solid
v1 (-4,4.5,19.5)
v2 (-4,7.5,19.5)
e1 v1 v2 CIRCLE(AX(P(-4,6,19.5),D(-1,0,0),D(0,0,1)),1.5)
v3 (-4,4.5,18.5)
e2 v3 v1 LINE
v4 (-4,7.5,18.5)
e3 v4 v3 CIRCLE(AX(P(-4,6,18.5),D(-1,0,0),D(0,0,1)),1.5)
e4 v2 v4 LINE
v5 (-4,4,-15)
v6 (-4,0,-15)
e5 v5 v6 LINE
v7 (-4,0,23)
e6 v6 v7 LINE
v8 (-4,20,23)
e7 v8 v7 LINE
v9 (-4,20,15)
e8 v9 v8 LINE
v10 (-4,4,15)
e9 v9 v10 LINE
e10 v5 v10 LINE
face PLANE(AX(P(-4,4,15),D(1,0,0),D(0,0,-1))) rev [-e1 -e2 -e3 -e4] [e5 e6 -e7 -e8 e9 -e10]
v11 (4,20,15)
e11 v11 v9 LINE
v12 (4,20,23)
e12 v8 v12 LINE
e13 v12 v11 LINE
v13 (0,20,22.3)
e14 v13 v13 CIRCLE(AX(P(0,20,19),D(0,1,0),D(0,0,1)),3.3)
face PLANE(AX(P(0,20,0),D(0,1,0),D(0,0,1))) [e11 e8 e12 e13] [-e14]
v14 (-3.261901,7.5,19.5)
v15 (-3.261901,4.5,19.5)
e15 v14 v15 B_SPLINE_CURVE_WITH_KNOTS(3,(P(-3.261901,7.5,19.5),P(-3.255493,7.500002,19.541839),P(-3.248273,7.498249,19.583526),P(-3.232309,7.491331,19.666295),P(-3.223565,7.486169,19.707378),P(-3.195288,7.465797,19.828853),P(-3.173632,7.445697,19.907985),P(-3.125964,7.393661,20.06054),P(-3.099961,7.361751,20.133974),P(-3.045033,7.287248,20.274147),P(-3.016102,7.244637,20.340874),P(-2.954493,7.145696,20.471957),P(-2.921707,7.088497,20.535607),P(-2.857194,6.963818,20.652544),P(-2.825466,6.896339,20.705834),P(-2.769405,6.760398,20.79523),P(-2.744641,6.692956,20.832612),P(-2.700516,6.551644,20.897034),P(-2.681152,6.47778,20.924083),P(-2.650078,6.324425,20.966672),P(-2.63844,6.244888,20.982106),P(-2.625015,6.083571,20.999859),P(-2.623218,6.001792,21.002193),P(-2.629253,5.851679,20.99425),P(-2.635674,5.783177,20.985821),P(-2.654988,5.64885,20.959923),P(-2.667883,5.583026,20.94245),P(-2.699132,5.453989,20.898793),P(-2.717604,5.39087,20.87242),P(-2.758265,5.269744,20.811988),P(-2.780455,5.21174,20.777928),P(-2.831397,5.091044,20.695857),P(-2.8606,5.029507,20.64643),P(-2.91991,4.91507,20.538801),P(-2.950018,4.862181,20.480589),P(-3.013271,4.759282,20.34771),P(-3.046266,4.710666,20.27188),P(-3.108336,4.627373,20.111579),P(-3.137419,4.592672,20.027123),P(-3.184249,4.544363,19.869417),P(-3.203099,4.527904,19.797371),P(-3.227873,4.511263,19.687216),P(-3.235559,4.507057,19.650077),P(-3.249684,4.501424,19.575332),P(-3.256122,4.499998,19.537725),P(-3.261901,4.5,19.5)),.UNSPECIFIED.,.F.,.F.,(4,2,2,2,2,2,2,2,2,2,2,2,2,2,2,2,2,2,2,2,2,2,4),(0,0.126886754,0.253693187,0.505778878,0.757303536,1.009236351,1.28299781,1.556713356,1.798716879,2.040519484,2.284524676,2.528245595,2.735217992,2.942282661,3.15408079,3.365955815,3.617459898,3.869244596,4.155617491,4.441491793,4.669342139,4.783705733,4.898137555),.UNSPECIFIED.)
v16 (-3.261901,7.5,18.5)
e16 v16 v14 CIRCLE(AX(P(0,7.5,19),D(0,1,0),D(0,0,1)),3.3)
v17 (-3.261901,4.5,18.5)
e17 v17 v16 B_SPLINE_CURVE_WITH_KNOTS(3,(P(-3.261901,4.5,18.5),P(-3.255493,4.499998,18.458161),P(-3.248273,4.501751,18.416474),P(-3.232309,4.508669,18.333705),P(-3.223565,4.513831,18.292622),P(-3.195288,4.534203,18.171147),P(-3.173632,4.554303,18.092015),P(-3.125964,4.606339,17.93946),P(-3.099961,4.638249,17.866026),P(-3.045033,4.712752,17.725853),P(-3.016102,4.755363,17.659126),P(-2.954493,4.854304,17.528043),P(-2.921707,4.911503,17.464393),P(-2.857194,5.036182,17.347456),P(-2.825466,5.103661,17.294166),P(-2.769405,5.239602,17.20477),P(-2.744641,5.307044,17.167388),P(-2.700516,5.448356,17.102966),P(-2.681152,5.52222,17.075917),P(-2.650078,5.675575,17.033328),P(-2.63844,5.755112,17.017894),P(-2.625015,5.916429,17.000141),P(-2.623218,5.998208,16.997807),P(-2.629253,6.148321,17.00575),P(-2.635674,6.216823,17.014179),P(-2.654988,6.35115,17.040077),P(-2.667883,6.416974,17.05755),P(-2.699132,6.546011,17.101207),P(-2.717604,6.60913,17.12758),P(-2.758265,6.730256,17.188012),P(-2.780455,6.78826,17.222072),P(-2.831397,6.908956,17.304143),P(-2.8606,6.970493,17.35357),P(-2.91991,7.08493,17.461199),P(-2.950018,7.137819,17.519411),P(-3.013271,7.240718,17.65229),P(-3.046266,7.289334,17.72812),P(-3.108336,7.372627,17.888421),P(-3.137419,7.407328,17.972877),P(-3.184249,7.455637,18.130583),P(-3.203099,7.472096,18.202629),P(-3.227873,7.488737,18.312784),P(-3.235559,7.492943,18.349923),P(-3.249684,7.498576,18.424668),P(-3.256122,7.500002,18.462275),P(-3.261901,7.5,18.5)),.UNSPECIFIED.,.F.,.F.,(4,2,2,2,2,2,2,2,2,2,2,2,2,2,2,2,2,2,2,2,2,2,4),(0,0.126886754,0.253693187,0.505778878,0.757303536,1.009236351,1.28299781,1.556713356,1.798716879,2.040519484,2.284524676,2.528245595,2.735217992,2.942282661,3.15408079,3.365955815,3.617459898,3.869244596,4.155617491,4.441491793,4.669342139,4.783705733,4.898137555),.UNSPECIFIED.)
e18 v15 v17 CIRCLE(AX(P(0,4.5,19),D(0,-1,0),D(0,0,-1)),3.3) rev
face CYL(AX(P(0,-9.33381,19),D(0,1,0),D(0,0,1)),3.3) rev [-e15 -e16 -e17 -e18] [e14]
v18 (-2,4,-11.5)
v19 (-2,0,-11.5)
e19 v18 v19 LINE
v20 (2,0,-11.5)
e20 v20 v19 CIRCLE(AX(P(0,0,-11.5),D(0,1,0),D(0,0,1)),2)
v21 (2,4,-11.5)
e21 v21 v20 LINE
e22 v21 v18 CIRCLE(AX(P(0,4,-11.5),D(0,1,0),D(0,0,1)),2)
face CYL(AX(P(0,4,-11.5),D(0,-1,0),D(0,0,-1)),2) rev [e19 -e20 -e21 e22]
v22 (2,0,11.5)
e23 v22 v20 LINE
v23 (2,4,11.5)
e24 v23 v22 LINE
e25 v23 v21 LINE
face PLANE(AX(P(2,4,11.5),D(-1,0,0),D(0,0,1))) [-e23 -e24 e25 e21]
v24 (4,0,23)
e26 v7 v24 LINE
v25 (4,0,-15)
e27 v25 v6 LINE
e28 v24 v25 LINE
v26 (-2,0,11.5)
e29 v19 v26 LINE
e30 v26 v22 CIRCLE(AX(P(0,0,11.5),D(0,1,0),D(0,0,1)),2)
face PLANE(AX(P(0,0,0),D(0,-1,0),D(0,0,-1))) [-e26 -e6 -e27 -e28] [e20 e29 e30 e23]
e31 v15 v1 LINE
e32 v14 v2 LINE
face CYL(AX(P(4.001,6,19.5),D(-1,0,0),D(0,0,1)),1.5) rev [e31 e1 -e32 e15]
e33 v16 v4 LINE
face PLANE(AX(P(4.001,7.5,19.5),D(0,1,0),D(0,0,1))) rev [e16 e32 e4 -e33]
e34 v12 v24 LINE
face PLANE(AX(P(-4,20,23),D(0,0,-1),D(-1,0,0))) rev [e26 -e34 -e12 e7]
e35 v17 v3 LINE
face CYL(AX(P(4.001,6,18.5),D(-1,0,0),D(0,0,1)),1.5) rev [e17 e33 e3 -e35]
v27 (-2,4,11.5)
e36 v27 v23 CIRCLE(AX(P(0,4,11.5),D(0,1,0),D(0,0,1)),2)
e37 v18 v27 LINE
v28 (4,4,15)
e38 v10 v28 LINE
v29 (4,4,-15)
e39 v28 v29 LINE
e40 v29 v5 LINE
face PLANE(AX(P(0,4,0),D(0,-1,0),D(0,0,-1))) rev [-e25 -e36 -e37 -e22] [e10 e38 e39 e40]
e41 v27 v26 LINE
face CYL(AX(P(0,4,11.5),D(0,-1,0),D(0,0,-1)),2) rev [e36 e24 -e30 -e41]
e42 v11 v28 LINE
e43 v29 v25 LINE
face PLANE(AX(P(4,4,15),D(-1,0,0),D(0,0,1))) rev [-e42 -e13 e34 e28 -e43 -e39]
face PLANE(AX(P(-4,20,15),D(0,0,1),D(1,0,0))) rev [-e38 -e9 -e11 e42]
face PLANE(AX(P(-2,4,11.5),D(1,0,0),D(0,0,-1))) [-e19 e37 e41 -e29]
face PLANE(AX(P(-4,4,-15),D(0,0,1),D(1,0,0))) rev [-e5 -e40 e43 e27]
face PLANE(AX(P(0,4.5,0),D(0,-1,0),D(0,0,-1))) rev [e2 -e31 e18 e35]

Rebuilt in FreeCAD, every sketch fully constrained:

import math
import FreeCAD as App
import Part
import Sketcher
from FreeCAD import Vector


def add_polygon(sketch, points):
    """Adds a closed chain of lines whose ends are joined by coincident constraints."""
    first, n = sketch.GeometryCount, len(points)
    for a, b in zip(points, points[1:] + points[:1]):
        sketch.addGeometry(Part.LineSegment(App.Vector(*a, 0), App.Vector(*b, 0)), False)
    for i in range(n):
        sketch.addConstraint(Sketcher.Constraint("Coincident", first + i, 2, first + (i + 1) % n, 1))

doc = App.newDocument("Part")
params = doc.addObject("Spreadsheet::Sheet", "Params")
for row, (alias, value) in enumerate([
    ("sketch1_width", "8 mm"),
    ("sketch1_height", "30 mm"),
    ("pad1_length", "4 mm"),
    ("sketch2_radius", "2 mm"),
    ("sketch2_height", "23 mm"),
    ("sketch3_width", "8 mm"),
    ("pad2_length", "20 mm"),
    ("sketch4_diameter", "6.6 mm"),
    ("pocket2_length", "15.5 mm"),
    ("sketch5_radius", "1.5 mm"),
    ("sketch5_height", "1 mm"),
], start=1):
    params.set(f"A{row}", alias)
    params.set(f"B{row}", "=" + value)
    params.setAlias(f"B{row}", alias)

body = doc.addObject("PartDesign::Body", "Body")

sketch1 = body.newObject("Sketcher::SketchObject", "Sketch")
sketch1.AttachmentSupport = (doc.getObject("XZ_Plane"), [""])
sketch1.MapMode = "FlatFace"
add_polygon(sketch1, [(-4, -15), (-4, 15), (4, 15), (4, -15)])
sketch1.addConstraint(Sketcher.Constraint("Vertical", 0))
sketch1.addConstraint(Sketcher.Constraint("Horizontal", 1))
sketch1.addConstraint(Sketcher.Constraint("Vertical", 2))
sketch1.addConstraint(Sketcher.Constraint("Horizontal", 3))
sketch1.addConstraint(Sketcher.Constraint("Symmetric", 0, 2, 2, 2, -1, 1))
sketch1.addConstraint(Sketcher.Constraint("DistanceX", 1, 1, 1, 2, 8.0))
sketch1.addConstraint(Sketcher.Constraint("DistanceY", 0, 1, 0, 2, 30.0))
sketch1.setExpression("Constraints[9]", "Params.sketch1_width")
sketch1.setExpression("Constraints[10]", "Params.sketch1_height")
pad1 = body.newObject("PartDesign::Pad", "Pad")
pad1.Profile = sketch1
pad1.setExpression("Length", "Params.pad1_length")
pad1.Reversed = True

sketch2 = body.newObject("Sketcher::SketchObject", "Sketch001")
sketch2.AttachmentSupport = (doc.getObject("XZ_Plane"), [""])
sketch2.MapMode = "FlatFace"
sketch2.addGeometry(Part.LineSegment(Vector(-2, -11.5, 0), Vector(-2, 11.5, 0)), False)
sketch2.addGeometry(Part.ArcOfCircle(Part.Circle(Vector(0, 11.5, 0), Vector(0, 0, 1), 2), math.radians(0), math.radians(180)), False)
sketch2.addGeometry(Part.LineSegment(Vector(2, 11.5, 0), Vector(2, -11.5, 0)), False)
sketch2.addGeometry(Part.ArcOfCircle(Part.Circle(Vector(0, -11.5, 0), Vector(0, 0, 1), 2), math.radians(180), math.radians(360)), False)
sketch2.addConstraint(Sketcher.Constraint("Tangent", 0, 2, 1, 2))
sketch2.addConstraint(Sketcher.Constraint("Tangent", 1, 1, 2, 1))
sketch2.addConstraint(Sketcher.Constraint("Tangent", 2, 2, 3, 2))
sketch2.addConstraint(Sketcher.Constraint("Tangent", 3, 1, 0, 1))
sketch2.addConstraint(Sketcher.Constraint("Vertical", 0))
sketch2.addConstraint(Sketcher.Constraint("Vertical", 2))
sketch2.addConstraint(Sketcher.Constraint("Symmetric", 1, 3, 3, 3, -1, 1))
sketch2.addConstraint(Sketcher.Constraint("Radius", 1, 2.0))
sketch2.addConstraint(Sketcher.Constraint("DistanceY", 0, 1, 0, 2, 23.0))
sketch2.setExpression("Constraints[7]", "Params.sketch2_radius")
sketch2.setExpression("Constraints[8]", "Params.sketch2_height")
pocket1 = body.newObject("PartDesign::Pocket", "Pocket")
pocket1.Profile = sketch2
pocket1.Type = "ThroughAll"

sketch3 = body.newObject("Sketcher::SketchObject", "Sketch002")
sketch3.AttachmentSupport = (doc.getObject("XZ_Plane"), [""])
sketch3.MapMode = "FlatFace"
add_polygon(sketch3, [(-4, 15), (-4, 23), (4, 23), (4, 15)])
sketch3.addConstraint(Sketcher.Constraint("Vertical", 0))
sketch3.addConstraint(Sketcher.Constraint("Horizontal", 1))
sketch3.addConstraint(Sketcher.Constraint("Vertical", 2))
sketch3.addConstraint(Sketcher.Constraint("Horizontal", 3))
sketch3.addConstraint(Sketcher.Constraint("Equal", 3, 0))
sketch3.addConstraint(Sketcher.Constraint("DistanceX", 1, 1, 1, 2, 8.0))
sketch3.addConstraint(Sketcher.Constraint("DistanceX", 0, 2, -1, 1, 4.0))
sketch3.addConstraint(Sketcher.Constraint("DistanceY", -1, 1, 0, 2, 23.0))
sketch3.setExpression("Constraints[9]", "Params.sketch3_width")
pad2 = body.newObject("PartDesign::Pad", "Pad001")
pad2.Profile = sketch3
pad2.setExpression("Length", "Params.pad2_length")
pad2.Reversed = True

sketch4 = body.newObject("Sketcher::SketchObject", "Sketch003")
sketch4.AttachmentSupport = (doc.getObject("XZ_Plane"), [""])
sketch4.MapMode = "FlatFace"
sketch4.AttachmentOffset = App.Placement(Vector(0, 0, -20), App.Rotation())
sketch4.addGeometry(Part.Circle(Vector(0, 19, 0), Vector(0, 0, 1), 3.3), False)
sketch4.addConstraint(Sketcher.Constraint("PointOnObject", 0, 3, -2))
sketch4.addConstraint(Sketcher.Constraint("Diameter", 0, 6.6))
sketch4.addConstraint(Sketcher.Constraint("DistanceY", -1, 1, 0, 3, 19.0))
sketch4.setExpression("Constraints[1]", "Params.sketch4_diameter")
pocket2 = body.newObject("PartDesign::Pocket", "Pocket001")
pocket2.Profile = sketch4
pocket2.setExpression("Length", "Params.pocket2_length")
pocket2.Reversed = True

sketch5 = body.newObject("Sketcher::SketchObject", "Sketch004")
sketch5.AttachmentSupport = (doc.getObject("YZ_Plane"), [""])
sketch5.MapMode = "FlatFace"
sketch5.AttachmentOffset = App.Placement(Vector(0, 0, -4), App.Rotation())
sketch5.addGeometry(Part.LineSegment(Vector(4.5, 18.5, 0), Vector(4.5, 19.5, 0)), False)
sketch5.addGeometry(Part.ArcOfCircle(Part.Circle(Vector(6, 19.5, 0), Vector(0, 0, 1), 1.5), math.radians(0), math.radians(180)), False)
sketch5.addGeometry(Part.LineSegment(Vector(7.5, 19.5, 0), Vector(7.5, 18.5, 0)), False)
sketch5.addGeometry(Part.ArcOfCircle(Part.Circle(Vector(6, 18.5, 0), Vector(0, 0, 1), 1.5), math.radians(180), math.radians(360)), False)
sketch5.addConstraint(Sketcher.Constraint("Tangent", 0, 2, 1, 2))
sketch5.addConstraint(Sketcher.Constraint("Tangent", 1, 1, 2, 1))
sketch5.addConstraint(Sketcher.Constraint("Tangent", 2, 2, 3, 2))
sketch5.addConstraint(Sketcher.Constraint("Tangent", 3, 1, 0, 1))
sketch5.addConstraint(Sketcher.Constraint("Vertical", 0))
sketch5.addConstraint(Sketcher.Constraint("Vertical", 2))
sketch5.addConstraint(Sketcher.Constraint("Radius", 1, 1.5))
sketch5.addConstraint(Sketcher.Constraint("DistanceY", 0, 1, 0, 2, 1.0))
sketch5.addConstraint(Sketcher.Constraint("DistanceX", -1, 1, 1, 3, 6.0))
sketch5.addConstraint(Sketcher.Constraint("DistanceY", -1, 1, 1, 3, 19.5))
sketch5.setExpression("Constraints[6]", "Params.sketch5_radius")
sketch5.setExpression("Constraints[7]", "Params.sketch5_height")
pocket3 = body.newObject("PartDesign::Pocket", "Pocket002")
pocket3.Profile = sketch5
pocket3.Type = "UpToFirst"
pocket3.Reversed = True

doc.recompute()
